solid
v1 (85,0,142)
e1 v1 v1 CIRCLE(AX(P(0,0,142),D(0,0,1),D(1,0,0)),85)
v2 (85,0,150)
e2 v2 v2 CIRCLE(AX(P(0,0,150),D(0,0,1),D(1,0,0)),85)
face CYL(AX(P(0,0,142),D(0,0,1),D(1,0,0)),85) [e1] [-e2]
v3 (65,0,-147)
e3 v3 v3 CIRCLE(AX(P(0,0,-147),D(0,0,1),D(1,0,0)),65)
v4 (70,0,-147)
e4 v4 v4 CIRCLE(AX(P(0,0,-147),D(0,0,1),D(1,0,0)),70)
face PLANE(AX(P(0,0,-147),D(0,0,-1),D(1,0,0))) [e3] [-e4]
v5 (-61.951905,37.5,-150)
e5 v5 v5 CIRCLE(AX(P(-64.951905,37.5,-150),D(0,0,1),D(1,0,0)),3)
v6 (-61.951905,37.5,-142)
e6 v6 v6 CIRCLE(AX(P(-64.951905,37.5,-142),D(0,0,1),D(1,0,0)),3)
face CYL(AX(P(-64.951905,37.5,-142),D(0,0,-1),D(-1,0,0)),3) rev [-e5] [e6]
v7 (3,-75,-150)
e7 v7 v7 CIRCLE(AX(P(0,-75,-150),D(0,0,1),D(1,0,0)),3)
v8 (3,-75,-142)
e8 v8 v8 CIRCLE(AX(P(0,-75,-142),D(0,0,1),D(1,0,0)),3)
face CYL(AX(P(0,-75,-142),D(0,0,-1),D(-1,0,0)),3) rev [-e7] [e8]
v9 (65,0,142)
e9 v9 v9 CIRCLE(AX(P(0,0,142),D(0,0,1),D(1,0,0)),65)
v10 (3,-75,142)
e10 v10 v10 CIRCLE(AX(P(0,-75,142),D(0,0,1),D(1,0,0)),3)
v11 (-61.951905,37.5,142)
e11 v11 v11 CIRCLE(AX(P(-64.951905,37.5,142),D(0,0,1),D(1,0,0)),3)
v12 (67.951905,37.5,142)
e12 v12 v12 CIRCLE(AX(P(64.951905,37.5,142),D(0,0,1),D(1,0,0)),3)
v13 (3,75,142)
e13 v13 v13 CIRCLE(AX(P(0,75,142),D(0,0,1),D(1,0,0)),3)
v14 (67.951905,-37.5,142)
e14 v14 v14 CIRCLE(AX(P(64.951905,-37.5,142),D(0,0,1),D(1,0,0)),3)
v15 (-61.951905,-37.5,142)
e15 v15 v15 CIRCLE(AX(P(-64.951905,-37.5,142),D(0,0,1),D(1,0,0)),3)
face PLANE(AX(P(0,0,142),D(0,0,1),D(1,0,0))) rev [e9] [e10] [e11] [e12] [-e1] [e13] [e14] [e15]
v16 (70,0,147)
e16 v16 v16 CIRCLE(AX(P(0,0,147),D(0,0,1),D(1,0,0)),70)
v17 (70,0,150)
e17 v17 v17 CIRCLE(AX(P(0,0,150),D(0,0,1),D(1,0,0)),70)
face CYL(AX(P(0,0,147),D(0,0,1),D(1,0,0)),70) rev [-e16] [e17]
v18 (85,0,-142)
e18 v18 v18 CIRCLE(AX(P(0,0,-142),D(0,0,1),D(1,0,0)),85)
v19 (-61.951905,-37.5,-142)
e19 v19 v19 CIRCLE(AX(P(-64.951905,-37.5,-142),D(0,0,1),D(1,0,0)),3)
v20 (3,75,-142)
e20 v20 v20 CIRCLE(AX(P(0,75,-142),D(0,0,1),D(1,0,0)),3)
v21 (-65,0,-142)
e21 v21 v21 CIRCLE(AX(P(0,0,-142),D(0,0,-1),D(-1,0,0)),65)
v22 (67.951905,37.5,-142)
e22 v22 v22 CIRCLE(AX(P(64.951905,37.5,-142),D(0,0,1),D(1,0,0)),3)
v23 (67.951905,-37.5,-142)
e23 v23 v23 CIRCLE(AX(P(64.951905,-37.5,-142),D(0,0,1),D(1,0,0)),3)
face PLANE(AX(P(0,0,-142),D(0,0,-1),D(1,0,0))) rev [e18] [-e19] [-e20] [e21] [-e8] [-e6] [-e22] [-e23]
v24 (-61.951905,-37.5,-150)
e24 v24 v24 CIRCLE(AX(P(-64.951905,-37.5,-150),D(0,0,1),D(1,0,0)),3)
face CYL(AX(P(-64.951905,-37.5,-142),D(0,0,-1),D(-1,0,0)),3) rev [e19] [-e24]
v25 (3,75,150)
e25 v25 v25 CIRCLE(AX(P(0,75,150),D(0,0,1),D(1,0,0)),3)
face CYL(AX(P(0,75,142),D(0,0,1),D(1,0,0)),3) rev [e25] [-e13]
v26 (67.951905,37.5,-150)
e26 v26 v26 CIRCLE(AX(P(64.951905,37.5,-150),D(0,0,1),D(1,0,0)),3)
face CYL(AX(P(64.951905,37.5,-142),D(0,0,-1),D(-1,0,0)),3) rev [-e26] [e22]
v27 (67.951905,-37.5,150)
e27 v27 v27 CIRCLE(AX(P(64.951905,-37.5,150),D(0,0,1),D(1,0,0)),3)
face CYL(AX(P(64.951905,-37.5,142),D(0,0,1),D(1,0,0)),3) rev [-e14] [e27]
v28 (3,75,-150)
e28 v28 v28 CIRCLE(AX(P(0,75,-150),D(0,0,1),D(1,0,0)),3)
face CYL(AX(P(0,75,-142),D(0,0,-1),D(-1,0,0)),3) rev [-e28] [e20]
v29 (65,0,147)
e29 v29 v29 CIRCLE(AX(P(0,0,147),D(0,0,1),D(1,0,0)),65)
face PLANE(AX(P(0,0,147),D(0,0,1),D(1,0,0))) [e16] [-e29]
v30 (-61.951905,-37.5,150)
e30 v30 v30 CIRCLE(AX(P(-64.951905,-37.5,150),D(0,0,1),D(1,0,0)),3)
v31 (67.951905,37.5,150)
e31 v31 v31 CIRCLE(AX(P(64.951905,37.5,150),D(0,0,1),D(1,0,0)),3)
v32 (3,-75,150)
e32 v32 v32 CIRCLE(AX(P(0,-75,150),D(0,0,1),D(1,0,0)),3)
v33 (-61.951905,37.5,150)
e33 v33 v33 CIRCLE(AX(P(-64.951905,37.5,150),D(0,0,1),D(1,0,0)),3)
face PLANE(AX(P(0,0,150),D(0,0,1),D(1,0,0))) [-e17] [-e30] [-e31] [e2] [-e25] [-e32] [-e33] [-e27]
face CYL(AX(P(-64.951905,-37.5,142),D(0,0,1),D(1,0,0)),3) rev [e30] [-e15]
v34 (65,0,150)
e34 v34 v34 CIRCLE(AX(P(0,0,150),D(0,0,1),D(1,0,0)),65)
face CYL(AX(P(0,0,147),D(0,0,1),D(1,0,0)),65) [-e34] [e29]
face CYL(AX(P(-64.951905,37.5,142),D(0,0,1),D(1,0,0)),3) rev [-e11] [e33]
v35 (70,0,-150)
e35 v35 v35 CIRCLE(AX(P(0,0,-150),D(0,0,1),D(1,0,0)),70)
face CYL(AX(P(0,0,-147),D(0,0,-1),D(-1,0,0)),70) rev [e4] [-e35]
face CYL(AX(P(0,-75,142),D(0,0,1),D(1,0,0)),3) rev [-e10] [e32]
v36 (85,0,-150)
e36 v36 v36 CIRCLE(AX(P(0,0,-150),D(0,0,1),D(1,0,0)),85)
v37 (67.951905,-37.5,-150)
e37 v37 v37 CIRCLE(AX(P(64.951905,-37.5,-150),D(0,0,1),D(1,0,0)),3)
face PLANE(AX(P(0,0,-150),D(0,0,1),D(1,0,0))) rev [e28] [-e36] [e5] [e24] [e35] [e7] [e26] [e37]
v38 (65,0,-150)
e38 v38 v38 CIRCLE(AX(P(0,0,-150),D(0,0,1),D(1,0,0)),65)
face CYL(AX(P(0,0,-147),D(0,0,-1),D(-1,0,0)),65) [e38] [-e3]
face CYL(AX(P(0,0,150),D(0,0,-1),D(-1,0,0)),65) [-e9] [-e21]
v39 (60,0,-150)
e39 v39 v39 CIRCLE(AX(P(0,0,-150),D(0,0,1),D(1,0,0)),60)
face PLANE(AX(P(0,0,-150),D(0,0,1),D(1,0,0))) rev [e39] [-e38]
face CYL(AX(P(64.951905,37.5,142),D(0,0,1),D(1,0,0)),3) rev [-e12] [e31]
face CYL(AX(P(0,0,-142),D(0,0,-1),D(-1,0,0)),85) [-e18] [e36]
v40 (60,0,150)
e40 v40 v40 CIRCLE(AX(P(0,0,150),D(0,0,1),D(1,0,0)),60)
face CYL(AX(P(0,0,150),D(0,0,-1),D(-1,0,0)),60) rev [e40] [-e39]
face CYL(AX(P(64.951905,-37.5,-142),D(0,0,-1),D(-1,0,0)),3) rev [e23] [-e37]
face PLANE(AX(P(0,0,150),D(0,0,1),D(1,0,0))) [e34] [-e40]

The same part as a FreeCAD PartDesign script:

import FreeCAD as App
import Part
import Sketcher

V = App.Vector

doc = App.newDocument("Part")
body = doc.addObject("PartDesign::Body", "Body")

# Sketch on XY plane
sketch1 = body.newObject("Sketcher::SketchObject", "Sketch")
sketch1.AttachmentSupport = (doc.getObject("XY_Plane"), [""])
sketch1.MapMode = "FlatFace"
sketch1.addGeometry([
    Part.Circle(V(0, 0, 0), V(0, 0, 1), 65),
    Part.Circle(V(0, 0, 0), V(0, 0, 1), 60),
], False)
sketch1.addConstraint([
    Sketcher.Constraint("Coincident", 0, 3, -1, 1),
    Sketcher.Constraint("Coincident", 1, 3, -1, 1),
    Sketcher.Constraint("Diameter", 0, 130.0),
    Sketcher.Constraint("Diameter", 1, 120.0),
])
pad1 = body.newObject("PartDesign::Pad", "Pad")
pad1.Profile = sketch1
pad1.Length = 300
pad1.Midplane = True

# Sketch on XY plane
sketch2 = body.newObject("Sketcher::SketchObject", "Sketch001")
sketch2.AttachmentSupport = (doc.getObject("XY_Plane"), [""])
sketch2.MapMode = "FlatFace"
sketch2.AttachmentOffset = App.Placement(V(0, 0, 150), App.Rotation())
sketch2.addGeometry([
    Part.Circle(V(0, 0, 0), V(0, 0, 1), 85),  # 0
    Part.Circle(V(-64.951905, -37.5, 0), V(0, 0, 1), 3),  # 1
    Part.Circle(V(0, -75, 0), V(0, 0, 1), 3),  # 2
    Part.Circle(V(64.951905, -37.5, 0), V(0, 0, 1), 3),  # 3
    Part.Circle(V(-64.951905, 37.5, 0), V(0, 0, 1), 3),  # 4
    Part.Circle(V(0, 0, 0), V(0, 0, 1), 65),  # 5
    Part.Circle(V(64.951905, 37.5, 0), V(0, 0, 1), 3),  # 6
    Part.Circle(V(0, 75, 0), V(0, 0, 1), 3),  # 7
], False)
sketch2.addConstraint([
    Sketcher.Constraint("Coincident", 0, 3, -1, 1),
    Sketcher.Constraint("Coincident", 5, 3, -1, 1),
    Sketcher.Constraint("Equal", 1, 2),
    Sketcher.Constraint("Equal", 2, 3),
    Sketcher.Constraint("Equal", 3, 4),
    Sketcher.Constraint("Equal", 4, 6),
    Sketcher.Constraint("Equal", 6, 7),
    Sketcher.Constraint("Symmetric", 3, 3, 4, 3, -1, 1),
    Sketcher.Constraint("Symmetric", 1, 3, 6, 3, -1, 1),
    Sketcher.Constraint("Symmetric", 2, 3, 7, 3, -1, 1),
    Sketcher.Constraint("Symmetric", 1, 3, 3, 3, -2),
    Sketcher.Constraint("PointOnObject", 2, 3, -2),
    Sketcher.Constraint("Diameter", 0, 170.0),
    Sketcher.Constraint("Diameter", 1, 6.0),
    Sketcher.Constraint("Diameter", 5, 130.0),
    Sketcher.Constraint("DistanceY", 2, 3, -1, 1, 75.0),
    Sketcher.Constraint("DistanceY", 1, 3, 4, 3, 75.0),
    Sketcher.Constraint("DistanceX", 1, 3, 3, 3, 129.903811),
])
pad2 = body.newObject("PartDesign::Pad", "Pad001")
pad2.Profile = sketch2
pad2.Length = 8
pad2.Reversed = True

# Sketch on XY plane
sketch3 = body.newObject("Sketcher::SketchObject", "Sketch002")
sketch3.AttachmentSupport = (doc.getObject("XY_Plane"), [""])
sketch3.MapMode = "FlatFace"
sketch3.AttachmentOffset = App.Placement(V(0, 0, 150), App.Rotation())
sketch3.addGeometry([
    Part.Circle(V(0, 0, 0), V(0, 0, 1), 70),
    Part.Circle(V(0, 0, 0), V(0, 0, 1), 65),
], False)
sketch3.addConstraint([
    Sketcher.Constraint("Coincident", 0, 3, -1, 1),
    Sketcher.Constraint("Coincident", 1, 3, -1, 1),
    Sketcher.Constraint("Diameter", 0, 140.0),
    Sketcher.Constraint("Diameter", 1, 130.0),
])
pocket1 = body.newObject("PartDesign::Pocket", "Pocket")
pocket1.Profile = sketch3
pocket1.Length = 3
doc.recompute()

mirrored = body.newObject("PartDesign::Mirrored", "Mirrored")
mirrored.Originals = [pad2, pocket1]
mirrored.MirrorPlane = (doc.getObject("XY_Plane"), [""])
body.Tip = mirrored

doc.recompute()
